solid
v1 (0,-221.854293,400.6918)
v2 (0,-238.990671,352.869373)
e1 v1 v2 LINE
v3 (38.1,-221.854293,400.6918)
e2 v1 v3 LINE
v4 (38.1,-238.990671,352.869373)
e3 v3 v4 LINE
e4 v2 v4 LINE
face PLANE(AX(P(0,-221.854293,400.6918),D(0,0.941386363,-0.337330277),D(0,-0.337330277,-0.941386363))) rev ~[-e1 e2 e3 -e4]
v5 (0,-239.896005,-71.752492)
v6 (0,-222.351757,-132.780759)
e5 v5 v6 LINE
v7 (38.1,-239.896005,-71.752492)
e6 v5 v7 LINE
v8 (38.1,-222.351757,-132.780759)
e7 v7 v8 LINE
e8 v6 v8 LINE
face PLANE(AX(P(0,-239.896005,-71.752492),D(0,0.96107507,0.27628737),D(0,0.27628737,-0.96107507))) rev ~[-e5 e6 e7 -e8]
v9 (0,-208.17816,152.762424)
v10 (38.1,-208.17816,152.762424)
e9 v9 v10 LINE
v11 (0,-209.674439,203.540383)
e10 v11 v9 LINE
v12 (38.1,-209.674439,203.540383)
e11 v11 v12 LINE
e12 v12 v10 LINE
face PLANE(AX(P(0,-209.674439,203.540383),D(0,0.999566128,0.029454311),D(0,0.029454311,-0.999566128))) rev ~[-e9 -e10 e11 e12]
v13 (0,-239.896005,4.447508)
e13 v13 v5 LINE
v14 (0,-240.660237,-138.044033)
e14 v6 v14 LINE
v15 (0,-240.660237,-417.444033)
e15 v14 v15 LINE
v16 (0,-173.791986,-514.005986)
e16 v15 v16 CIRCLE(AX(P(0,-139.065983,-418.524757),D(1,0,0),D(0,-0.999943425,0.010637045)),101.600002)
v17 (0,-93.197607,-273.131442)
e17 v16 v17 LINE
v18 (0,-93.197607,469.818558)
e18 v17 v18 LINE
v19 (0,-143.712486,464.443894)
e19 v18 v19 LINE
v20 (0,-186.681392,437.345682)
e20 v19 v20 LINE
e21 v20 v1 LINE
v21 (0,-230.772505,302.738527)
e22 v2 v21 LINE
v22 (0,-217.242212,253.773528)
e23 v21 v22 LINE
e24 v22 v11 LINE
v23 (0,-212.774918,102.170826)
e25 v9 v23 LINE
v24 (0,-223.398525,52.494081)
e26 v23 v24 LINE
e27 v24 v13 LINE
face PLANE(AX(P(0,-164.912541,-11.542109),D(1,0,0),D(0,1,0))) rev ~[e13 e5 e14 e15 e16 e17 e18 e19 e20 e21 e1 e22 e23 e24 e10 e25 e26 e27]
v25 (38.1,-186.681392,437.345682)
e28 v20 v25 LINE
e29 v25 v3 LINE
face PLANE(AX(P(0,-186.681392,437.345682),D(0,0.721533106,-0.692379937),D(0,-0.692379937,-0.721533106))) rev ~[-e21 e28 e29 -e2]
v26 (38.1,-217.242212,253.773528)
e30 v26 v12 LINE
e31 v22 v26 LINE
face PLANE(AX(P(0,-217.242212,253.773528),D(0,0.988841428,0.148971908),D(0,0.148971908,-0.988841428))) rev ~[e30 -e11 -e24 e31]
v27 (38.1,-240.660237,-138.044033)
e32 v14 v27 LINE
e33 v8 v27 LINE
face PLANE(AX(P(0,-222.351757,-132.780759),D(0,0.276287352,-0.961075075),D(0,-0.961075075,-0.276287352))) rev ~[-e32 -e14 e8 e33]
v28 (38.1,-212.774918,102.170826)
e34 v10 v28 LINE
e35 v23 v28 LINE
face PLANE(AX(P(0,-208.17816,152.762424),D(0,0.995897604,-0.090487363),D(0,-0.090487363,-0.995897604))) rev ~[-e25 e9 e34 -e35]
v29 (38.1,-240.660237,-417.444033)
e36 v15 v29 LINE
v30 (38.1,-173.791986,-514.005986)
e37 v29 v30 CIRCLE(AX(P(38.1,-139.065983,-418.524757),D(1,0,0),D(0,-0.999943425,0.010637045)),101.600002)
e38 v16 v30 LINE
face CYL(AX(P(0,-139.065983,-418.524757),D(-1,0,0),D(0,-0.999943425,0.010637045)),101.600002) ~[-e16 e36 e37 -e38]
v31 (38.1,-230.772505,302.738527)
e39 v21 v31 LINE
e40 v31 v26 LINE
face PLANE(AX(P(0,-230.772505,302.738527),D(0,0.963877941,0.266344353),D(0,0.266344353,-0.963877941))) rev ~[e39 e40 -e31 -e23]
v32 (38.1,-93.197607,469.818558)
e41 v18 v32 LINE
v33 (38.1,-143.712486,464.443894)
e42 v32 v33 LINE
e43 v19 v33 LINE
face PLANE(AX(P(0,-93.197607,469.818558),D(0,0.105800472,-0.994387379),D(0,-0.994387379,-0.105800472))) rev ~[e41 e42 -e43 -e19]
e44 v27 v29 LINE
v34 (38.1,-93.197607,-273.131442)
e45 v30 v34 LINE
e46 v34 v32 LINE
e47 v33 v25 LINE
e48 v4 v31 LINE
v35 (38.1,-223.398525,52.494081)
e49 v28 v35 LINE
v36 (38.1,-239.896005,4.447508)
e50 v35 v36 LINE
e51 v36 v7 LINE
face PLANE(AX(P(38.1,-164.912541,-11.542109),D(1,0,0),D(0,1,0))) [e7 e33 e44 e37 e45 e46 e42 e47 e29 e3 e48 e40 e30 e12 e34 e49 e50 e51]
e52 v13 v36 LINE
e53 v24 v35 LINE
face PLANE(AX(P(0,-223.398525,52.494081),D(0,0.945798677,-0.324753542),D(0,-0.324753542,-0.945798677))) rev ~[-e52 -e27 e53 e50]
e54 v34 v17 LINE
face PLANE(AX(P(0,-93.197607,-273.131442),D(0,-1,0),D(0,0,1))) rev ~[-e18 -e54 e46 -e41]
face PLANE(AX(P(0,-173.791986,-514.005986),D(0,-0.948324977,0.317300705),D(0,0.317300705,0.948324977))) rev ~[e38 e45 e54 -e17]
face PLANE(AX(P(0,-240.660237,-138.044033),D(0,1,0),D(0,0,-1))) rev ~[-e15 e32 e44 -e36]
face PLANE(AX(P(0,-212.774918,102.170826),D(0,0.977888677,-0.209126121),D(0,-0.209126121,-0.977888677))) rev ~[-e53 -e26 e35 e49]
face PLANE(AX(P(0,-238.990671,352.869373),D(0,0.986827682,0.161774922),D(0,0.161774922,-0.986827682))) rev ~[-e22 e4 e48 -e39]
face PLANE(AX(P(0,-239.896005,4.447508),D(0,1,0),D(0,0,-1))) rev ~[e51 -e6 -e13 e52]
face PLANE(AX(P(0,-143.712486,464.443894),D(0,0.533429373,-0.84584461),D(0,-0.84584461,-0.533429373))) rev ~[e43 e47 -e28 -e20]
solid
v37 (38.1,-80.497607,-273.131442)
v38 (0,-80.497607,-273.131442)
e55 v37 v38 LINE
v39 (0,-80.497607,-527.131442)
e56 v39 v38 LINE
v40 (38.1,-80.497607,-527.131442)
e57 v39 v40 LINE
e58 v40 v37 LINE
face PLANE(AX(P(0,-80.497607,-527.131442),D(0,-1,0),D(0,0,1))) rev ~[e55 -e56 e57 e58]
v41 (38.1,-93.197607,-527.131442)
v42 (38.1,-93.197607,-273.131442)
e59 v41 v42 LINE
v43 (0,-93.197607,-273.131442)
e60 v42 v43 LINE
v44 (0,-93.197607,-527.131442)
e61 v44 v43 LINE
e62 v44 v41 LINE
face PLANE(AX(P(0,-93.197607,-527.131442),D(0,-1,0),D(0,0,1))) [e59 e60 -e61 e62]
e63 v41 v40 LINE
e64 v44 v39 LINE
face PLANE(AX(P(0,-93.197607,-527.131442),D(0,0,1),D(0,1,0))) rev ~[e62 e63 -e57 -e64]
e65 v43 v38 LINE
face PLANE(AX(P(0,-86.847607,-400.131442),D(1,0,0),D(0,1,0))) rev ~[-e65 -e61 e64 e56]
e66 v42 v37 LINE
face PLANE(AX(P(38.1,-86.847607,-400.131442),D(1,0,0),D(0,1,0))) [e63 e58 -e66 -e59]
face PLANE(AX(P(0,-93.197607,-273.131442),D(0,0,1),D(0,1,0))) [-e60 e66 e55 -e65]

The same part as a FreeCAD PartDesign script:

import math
import FreeCAD as App
import Part
import Sketcher
Q = App.Units.Quantity

doc = App.newDocument("Part")
body = doc.addObject("PartDesign::Body", "Body")
body.AllowCompound = True

# Sketch on YZ plane
sketch1 = body.newObject("Sketcher::SketchObject", "Sketch")
sketch1.AttachmentSupport = (doc.getObject("YZ_Plane"), [""])
sketch1.MapMode = "FlatFace"
sketch1.addGeometry([
    Part.LineSegment(App.Vector(-93.197607, 469.818558, 0), App.Vector(-143.712486, 464.443894, 0)),  # 0
    Part.LineSegment(App.Vector(-143.712486, 464.443894, 0), App.Vector(-186.681392, 437.345682, 0)),  # 1
    Part.LineSegment(App.Vector(-186.681392, 437.345682, 0), App.Vector(-221.854293, 400.6918, 0)),  # 2
    Part.LineSegment(App.Vector(-221.854293, 400.6918, 0), App.Vector(-238.990671, 352.869373, 0)),  # 3
    Part.LineSegment(App.Vector(-238.990671, 352.869373, 0), App.Vector(-230.772505, 302.738527, 0)),  # 4
    Part.LineSegment(App.Vector(-230.772505, 302.738527, 0), App.Vector(-217.242212, 253.773528, 0)),  # 5
    Part.LineSegment(App.Vector(-217.242212, 253.773528, 0), App.Vector(-209.674439, 203.540383, 0)),  # 6
    Part.LineSegment(App.Vector(-209.674439, 203.540383, 0), App.Vector(-208.17816, 152.762424, 0)),  # 7
    Part.LineSegment(App.Vector(-208.17816, 152.762424, 0), App.Vector(-212.774918, 102.170826, 0)),  # 8
    Part.LineSegment(App.Vector(-212.774918, 102.170826, 0), App.Vector(-223.398525, 52.494081, 0)),  # 9
    Part.LineSegment(App.Vector(-223.398525, 52.494081, 0), App.Vector(-239.896005, 4.447508, 0)),  # 10
    Part.LineSegment(App.Vector(-239.896005, 4.447508, 0), App.Vector(-239.896005, -71.752492, 0)),  # 11
    Part.LineSegment(App.Vector(-239.896005, -71.752492, 0), App.Vector(-222.351757, -132.780759, 0)),  # 12
    Part.LineSegment(App.Vector(-222.351757, -132.780759, 0), App.Vector(-240.660237, -138.044033, 0)),  # 13
    Part.LineSegment(App.Vector(-240.660237, -138.044033, 0), App.Vector(-240.660237, -417.444033, 0)),  # 14
    Part.ArcOfCircle(Part.Circle(App.Vector(-139.065983, -418.524757, 0), App.Vector(0, 0, 1), 101.600002), math.radians(179.390531), math.radians(250.013949)),  # 15
    Part.LineSegment(App.Vector(-173.791986, -514.005986, 0), App.Vector(-93.197607, -273.131442, 0)),  # 16
    Part.LineSegment(App.Vector(-93.197607, -273.131442, 0), App.Vector(-93.197607, 469.818558, 0)),  # 17
    Part.LineSegment(App.Vector(-93.197607, -273.131442, 0), App.Vector(-93.197607, -527.131442, 0)),  # 18
    Part.LineSegment(App.Vector(-93.197607, -527.131442, 0), App.Vector(-80.497607, -527.131442, 0)),  # 19
    Part.LineSegment(App.Vector(-80.497607, -527.131442, 0), App.Vector(-80.497607, -273.131442, 0)),  # 20
    Part.LineSegment(App.Vector(-80.497607, -273.131442, 0), App.Vector(-93.197607, -273.131442, 0)),  # 21
], False)
sketch1.addConstraint([
    Sketcher.Constraint("Coincident", 0, 2, 1, 1),
    Sketcher.Constraint("Coincident", 1, 2, 2, 1),
    Sketcher.Constraint("Coincident", 2, 2, 3, 1),
    Sketcher.Constraint("Coincident", 3, 2, 4, 1),
    Sketcher.Constraint("Coincident", 4, 2, 5, 1),
    Sketcher.Constraint("Coincident", 5, 2, 6, 1),
    Sketcher.Constraint("Coincident", 6, 2, 7, 1),
    Sketcher.Constraint("Coincident", 7, 2, 8, 1),
    Sketcher.Constraint("Coincident", 8, 2, 9, 1),
    Sketcher.Constraint("Coincident", 9, 2, 10, 1),
    Sketcher.Constraint("Coincident", 10, 2, 11, 1),
    Sketcher.Constraint("Coincident", 11, 2, 12, 1),
    Sketcher.Constraint("Coincident", 12, 2, 13, 1),
    Sketcher.Constraint("Coincident", 13, 2, 14, 1),
    Sketcher.Constraint("Coincident", 14, 2, 15, 1),
    Sketcher.Constraint("Coincident", 15, 2, 16, 1),
    Sketcher.Constraint("Coincident", 16, 2, 17, 1),
    Sketcher.Constraint("Coincident", 17, 2, 0, 1),
    Sketcher.Constraint("Coincident", 18, 2, 19, 1),
    Sketcher.Constraint("Coincident", 19, 2, 20, 1),
    Sketcher.Constraint("Coincident", 20, 2, 21, 1),
    Sketcher.Constraint("Coincident", 21, 2, 18, 1),
    Sketcher.Constraint("Vertical", 11),
    Sketcher.Constraint("Vertical", 14),
    Sketcher.Constraint("Vertical", 17),
    Sketcher.Constraint("Vertical", 18),
    Sketcher.Constraint("Horizontal", 19),
    Sketcher.Constraint("Vertical", 20),
    Sketcher.Constraint("Horizontal", 21),
    Sketcher.Constraint("Coincident", 21, 2, 16, 2),
    Sketcher.Constraint("Perpendicular", 12, 13),
    Sketcher.Constraint("Equal", 0, 1),
    Sketcher.Constraint("Equal", 1, 2),
    Sketcher.Constraint("Equal", 2, 3),
    Sketcher.Constraint("Equal", 3, 4),
    Sketcher.Constraint("Equal", 4, 5),
    Sketcher.Constraint("Equal", 5, 6),
    Sketcher.Constraint("Equal", 6, 7),
    Sketcher.Constraint("Equal", 7, 8),
    Sketcher.Constraint("Equal", 8, 9),
    Sketcher.Constraint("Equal", 9, 10),
    Sketcher.Constraint("Radius", 15, Q("4.0000001 in")),
    Sketcher.Constraint("DistanceY", 11, 2, 11, 1, Q("3 in")),
    Sketcher.Constraint("DistanceY", 14, 2, 14, 1, Q("11 in")),
    Sketcher.Constraint("DistanceY", 18, 2, 18, 1, Q("10 in")),
    Sketcher.Constraint("Distance", 0, Q("2 in")),
    Sketcher.Constraint("Distance", 16, Q("10 in")),
    Sketcher.Constraint("DistanceX", 19, 1, 19, 2, Q("0.5 in")),
    Sketcher.Constraint("Distance", 12, Q("2.5 in")),
    Sketcher.Constraint("DistanceY", 17, 1, 17, 2, Q("29.25 in")),
    Sketcher.Constraint("Distance", 13, Q("0.75 in")),
    Sketcher.Constraint("DistanceY", -1, 1, 2, 2, Q("400.6918 mm")),
    Sketcher.Constraint("DistanceX", 2, 2, 1, 2, Q("35.172901 mm")),
    Sketcher.Constraint("DistanceY", 5, 2, 4, 2, Q("48.964999 mm")),
    Sketcher.Constraint("DistanceY", 6, 2, 1, 2, Q("233.805299 mm")),
    Sketcher.Constraint("DistanceY", 8, 2, 7, 2, Q("50.591598 mm")),
    Sketcher.Constraint("DistanceY", 8, 2, 5, 2, Q("151.602702 mm")),
    Sketcher.Constraint("DistanceY", 9, 2, 6, 2, Q("151.046302 mm")),
    Sketcher.Constraint("DistanceX", 11, 2, 16, 2, Q("146.698398 mm")),
    Sketcher.Constraint("DistanceX", 1, 2, -1, 1, Q("186.681392 mm")),
    Sketcher.Constraint("DistanceX", 3, 2, -1, 1, Q("238.990671 mm")),
    Sketcher.Constraint("DistanceX", 5, 2, -1, 1, Q("217.242212 mm")),
    Sketcher.Constraint("DistanceY", 12, 2, -1, 1, Q("132.780759 mm")),
    Sketcher.Constraint("DistanceY", 16, 2, -1, 1, Q("273.131442 mm")),
    Sketcher.Constraint("DistanceY", 15, 3, 0, 2, Q("882.968651 mm")),
    Sketcher.Constraint("DistanceY", 1, 2, 0, 2, Q("27.098212 mm")),
])
pad1 = body.newObject("PartDesign::Pad", "Pad")
pad1.Profile = sketch1
pad1.Length = Q("1.5 in")

# Sketch on YZ plane
sketch2 = body.newObject("Sketcher::SketchObject", "Sketch001")
sketch2.AttachmentSupport = (doc.getObject("YZ_Plane"), [""])
sketch2.MapMode = "FlatFace"
sketch2.addGeometry([
    Part.LineSegment(App.Vector(-93, -273, 0), App.Vector(-93, -527, 0)),
    Part.LineSegment(App.Vector(-93, -527, 0), App.Vector(-80, -527, 0)),
    Part.LineSegment(App.Vector(-80, -527, 0), App.Vector(-80, -273, 0)),
    Part.LineSegment(App.Vector(-80, -273, 0), App.Vector(-93, -273, 0)),
], False)
sketch2.addConstraint([
    Sketcher.Constraint("Coincident", 0, 2, 1, 1),
    Sketcher.Constraint("Coincident", 1, 2, 2, 1),
    Sketcher.Constraint("Coincident", 2, 2, 3, 1),
    Sketcher.Constraint("Coincident", 3, 2, 0, 1),
    Sketcher.Constraint("Vertical", 0),
    Sketcher.Constraint("Horizontal", 1),
    Sketcher.Constraint("Vertical", 2),
    Sketcher.Constraint("Horizontal", 3),
    Sketcher.Constraint("DistanceY", 0, 2, 0, 1, Q("10 in")),
    Sketcher.Constraint("DistanceX", 1, 1, 1, 2, Q("0.5 in")),
    Sketcher.Constraint("DistanceY", 0, 2, -1, 1, Q("527.131442 mm")),
    Sketcher.Constraint("DistanceX", 0, 2, -1, 1, Q("93.197607 mm")),
])
pad2 = body.newObject("PartDesign::Pad", "Pad001")
pad2.Profile = sketch2
pad2.Length = Q("1 in")

doc.recompute()
